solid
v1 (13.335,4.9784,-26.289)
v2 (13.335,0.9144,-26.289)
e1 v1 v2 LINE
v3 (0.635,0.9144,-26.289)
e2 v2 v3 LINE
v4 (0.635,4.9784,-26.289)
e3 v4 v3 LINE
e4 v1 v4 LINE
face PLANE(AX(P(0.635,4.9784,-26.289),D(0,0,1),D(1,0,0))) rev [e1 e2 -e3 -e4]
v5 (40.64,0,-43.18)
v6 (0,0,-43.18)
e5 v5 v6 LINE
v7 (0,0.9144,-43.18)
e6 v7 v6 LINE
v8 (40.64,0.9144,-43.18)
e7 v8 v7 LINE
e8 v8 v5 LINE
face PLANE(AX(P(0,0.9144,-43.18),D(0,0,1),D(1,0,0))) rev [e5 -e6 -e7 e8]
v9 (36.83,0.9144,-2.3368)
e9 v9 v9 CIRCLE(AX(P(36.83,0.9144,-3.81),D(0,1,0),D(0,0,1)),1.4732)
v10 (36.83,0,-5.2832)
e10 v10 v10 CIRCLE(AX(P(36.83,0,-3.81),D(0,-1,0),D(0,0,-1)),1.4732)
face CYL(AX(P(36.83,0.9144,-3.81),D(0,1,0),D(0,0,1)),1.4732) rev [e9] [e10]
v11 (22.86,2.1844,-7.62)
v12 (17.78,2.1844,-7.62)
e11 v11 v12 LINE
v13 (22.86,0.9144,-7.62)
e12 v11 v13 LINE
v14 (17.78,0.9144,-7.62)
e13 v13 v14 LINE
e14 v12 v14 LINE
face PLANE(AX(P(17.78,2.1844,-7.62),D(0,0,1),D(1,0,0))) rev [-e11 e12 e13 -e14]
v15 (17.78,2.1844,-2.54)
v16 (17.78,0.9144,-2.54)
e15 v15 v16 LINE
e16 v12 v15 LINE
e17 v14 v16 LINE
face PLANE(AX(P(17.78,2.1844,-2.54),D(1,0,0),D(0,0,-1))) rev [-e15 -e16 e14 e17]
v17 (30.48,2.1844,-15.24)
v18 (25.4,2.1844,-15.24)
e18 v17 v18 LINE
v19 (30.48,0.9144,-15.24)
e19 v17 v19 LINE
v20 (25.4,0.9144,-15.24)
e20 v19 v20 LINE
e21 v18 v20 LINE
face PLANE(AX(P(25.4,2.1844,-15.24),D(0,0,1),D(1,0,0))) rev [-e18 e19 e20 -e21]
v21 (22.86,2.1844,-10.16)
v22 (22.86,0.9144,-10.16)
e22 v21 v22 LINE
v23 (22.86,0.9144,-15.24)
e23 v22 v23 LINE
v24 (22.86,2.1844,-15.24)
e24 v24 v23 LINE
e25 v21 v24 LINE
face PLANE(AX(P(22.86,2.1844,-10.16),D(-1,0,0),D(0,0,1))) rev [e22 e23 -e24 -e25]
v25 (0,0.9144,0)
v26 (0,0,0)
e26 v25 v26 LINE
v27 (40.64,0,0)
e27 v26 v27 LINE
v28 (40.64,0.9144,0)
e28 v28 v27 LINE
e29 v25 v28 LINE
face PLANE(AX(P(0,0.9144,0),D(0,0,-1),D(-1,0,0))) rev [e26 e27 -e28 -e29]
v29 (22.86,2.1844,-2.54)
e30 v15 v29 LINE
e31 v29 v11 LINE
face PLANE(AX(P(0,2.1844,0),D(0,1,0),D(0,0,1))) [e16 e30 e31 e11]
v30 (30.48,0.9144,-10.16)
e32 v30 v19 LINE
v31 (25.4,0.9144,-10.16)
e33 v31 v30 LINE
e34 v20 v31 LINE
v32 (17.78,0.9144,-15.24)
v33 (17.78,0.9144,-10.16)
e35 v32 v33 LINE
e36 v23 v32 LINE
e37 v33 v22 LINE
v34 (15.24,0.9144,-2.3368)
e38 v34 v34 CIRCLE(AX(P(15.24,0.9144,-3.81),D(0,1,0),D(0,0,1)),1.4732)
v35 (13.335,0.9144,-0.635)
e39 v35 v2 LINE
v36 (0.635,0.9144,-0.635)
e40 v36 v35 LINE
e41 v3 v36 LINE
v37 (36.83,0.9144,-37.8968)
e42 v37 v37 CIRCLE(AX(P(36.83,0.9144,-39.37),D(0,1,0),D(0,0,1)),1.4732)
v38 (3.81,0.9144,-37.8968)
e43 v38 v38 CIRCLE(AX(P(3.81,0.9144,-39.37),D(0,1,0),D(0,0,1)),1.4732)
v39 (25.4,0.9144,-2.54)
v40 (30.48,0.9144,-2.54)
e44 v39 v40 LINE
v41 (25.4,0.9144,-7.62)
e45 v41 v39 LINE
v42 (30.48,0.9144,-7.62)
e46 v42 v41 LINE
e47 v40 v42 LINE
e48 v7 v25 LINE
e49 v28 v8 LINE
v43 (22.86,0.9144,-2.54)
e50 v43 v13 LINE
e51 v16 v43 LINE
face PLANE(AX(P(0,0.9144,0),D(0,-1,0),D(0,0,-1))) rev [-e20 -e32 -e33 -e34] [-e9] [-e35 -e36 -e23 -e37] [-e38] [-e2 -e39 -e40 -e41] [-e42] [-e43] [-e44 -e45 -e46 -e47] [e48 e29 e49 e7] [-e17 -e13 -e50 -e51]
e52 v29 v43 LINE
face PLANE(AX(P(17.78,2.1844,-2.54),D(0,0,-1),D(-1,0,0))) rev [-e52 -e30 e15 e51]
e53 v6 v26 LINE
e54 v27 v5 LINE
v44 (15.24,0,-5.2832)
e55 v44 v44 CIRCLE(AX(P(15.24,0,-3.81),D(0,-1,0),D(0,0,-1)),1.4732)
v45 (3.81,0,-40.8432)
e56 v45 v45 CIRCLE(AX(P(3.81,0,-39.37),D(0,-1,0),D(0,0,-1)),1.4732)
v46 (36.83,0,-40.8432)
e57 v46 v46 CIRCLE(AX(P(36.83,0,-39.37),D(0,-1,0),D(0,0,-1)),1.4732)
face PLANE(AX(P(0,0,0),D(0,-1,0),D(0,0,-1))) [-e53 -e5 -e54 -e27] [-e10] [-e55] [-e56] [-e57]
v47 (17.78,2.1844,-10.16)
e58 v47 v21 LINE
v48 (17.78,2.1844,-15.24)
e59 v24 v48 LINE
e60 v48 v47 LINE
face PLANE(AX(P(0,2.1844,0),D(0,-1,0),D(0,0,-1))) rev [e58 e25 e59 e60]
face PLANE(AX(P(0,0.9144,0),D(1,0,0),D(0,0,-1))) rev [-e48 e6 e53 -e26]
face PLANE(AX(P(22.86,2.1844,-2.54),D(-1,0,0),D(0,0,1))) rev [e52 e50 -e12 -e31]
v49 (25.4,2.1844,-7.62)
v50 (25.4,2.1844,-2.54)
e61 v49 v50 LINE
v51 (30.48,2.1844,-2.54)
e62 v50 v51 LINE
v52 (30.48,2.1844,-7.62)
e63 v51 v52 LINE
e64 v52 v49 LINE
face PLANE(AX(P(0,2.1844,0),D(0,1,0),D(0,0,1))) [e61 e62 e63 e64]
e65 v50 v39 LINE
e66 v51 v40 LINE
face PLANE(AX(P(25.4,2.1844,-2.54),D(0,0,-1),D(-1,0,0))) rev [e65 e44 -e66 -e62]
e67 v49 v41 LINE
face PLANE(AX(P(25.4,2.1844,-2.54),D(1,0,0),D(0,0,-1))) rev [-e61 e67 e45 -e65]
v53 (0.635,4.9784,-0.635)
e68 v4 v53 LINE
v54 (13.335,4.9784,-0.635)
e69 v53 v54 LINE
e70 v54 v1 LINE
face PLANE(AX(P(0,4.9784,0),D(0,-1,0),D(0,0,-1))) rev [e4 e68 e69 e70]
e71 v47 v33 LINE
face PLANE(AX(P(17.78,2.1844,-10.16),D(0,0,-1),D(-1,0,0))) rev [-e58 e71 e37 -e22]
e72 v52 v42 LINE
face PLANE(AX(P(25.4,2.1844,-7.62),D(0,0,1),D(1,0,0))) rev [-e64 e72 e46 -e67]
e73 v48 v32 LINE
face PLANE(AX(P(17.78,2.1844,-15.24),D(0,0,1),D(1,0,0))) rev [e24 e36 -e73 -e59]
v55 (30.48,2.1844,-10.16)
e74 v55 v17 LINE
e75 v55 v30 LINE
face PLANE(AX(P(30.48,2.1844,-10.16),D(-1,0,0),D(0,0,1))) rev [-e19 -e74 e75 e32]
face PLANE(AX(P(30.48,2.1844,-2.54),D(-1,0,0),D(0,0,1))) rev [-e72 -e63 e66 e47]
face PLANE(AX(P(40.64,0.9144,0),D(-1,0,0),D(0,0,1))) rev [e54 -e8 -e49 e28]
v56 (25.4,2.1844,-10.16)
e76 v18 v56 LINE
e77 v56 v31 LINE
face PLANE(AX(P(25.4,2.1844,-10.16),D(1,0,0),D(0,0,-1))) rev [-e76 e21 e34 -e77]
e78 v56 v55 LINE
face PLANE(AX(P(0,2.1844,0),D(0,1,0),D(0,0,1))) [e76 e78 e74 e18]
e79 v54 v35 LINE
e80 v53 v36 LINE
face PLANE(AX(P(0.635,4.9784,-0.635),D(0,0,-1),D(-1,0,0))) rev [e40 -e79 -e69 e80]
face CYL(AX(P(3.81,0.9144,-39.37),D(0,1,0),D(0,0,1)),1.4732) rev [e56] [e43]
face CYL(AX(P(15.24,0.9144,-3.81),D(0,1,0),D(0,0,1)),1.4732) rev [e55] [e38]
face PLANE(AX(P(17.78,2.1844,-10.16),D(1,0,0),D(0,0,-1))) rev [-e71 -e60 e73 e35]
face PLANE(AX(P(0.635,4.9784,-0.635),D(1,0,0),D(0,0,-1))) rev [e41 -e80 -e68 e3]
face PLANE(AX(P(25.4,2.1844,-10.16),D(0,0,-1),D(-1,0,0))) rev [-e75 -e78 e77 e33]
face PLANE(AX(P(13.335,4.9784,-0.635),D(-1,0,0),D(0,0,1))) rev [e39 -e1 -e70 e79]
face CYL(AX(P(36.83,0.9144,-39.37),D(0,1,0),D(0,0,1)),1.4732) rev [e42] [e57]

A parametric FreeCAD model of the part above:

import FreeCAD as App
import Part
import Sketcher

V = App.Vector
Q = App.Units.Quantity

doc = App.newDocument("Part")
params = doc.addObject("Spreadsheet::Sheet", "Params")
for row, (alias, value) in enumerate([
    ("sketch1_width", "1.6 in"),
    ("sketch1_height", "1.7 in"),
    ("pad1_length", "0.036 in"),
    ("sketch2_width", "0.2 in"),
    ("pad2_length", "0.05 in"),
    ("sketch3_width", "0.5 in"),
    ("sketch3_height", "1.01 in"),
    ("pad3_length", "0.16 in"),
    ("sketch4_diameter", "0.116 in"),
    ("hole_diameter", "0.116 in"),
    ("hole_depth", "1 in"),
], start=1):
    params.set(f"A{row}", alias)
    params.set(f"B{row}", "=" + value)
    params.setAlias(f"B{row}", alias)

body = doc.addObject("PartDesign::Body", "Body")

sketch1 = body.newObject("Sketcher::SketchObject", "Sketch")
sketch1.AttachmentSupport = (doc.getObject("XZ_Plane"), [""])
sketch1.MapMode = "FlatFace"
sketch1.addGeometry(Part.LineSegment(V(0, -43, 0), V(0, 0, 0)), False)
sketch1.addGeometry(Part.LineSegment(V(0, 0, 0), V(41, 0, 0)), False)
sketch1.addGeometry(Part.LineSegment(V(41, 0, 0), V(41, -43, 0)), False)
sketch1.addGeometry(Part.LineSegment(V(41, -43, 0), V(0, -43, 0)), False)
sketch1.addConstraint(Sketcher.Constraint("Coincident", 0, 2, 1, 1))
sketch1.addConstraint(Sketcher.Constraint("Coincident", 1, 2, 2, 1))
sketch1.addConstraint(Sketcher.Constraint("Coincident", 2, 2, 3, 1))
sketch1.addConstraint(Sketcher.Constraint("Coincident", 3, 2, 0, 1))
sketch1.addConstraint(Sketcher.Constraint("Vertical", 0))
sketch1.addConstraint(Sketcher.Constraint("Horizontal", 1))
sketch1.addConstraint(Sketcher.Constraint("Vertical", 2))
sketch1.addConstraint(Sketcher.Constraint("Horizontal", 3))
sketch1.addConstraint(Sketcher.Constraint("Coincident", 0, 2, -1, 1))
sketch1.addConstraint(Sketcher.Constraint("DistanceX", 1, 1, 1, 2, Q("1.6 in")))
sketch1.addConstraint(Sketcher.Constraint("DistanceY", 0, 1, 0, 2, Q("1.7 in")))
sketch1.setExpression("Constraints[9]", "Params.sketch1_width")
sketch1.setExpression("Constraints[10]", "Params.sketch1_height")
pad1 = body.newObject("PartDesign::Pad", "Pad")
pad1.Profile = sketch1
pad1.setExpression("Length", "Params.pad1_length")
pad1.Reversed = True

sketch2 = body.newObject("Sketcher::SketchObject", "Sketch001")
sketch2.AttachmentSupport = (doc.getObject("XZ_Plane"), [""])
sketch2.MapMode = "FlatFace"
sketch2.AttachmentOffset = App.Placement(V(0, 0, -0.036 * 25.4), App.Rotation())
sketch2.addGeometry(Part.LineSegment(V(18, -15, 0), V(18, -10, 0)), False)
sketch2.addGeometry(Part.LineSegment(V(18, -10, 0), V(23, -10, 0)), False)
sketch2.addGeometry(Part.LineSegment(V(23, -10, 0), V(23, -15, 0)), False)
sketch2.addGeometry(Part.LineSegment(V(23, -15, 0), V(18, -15, 0)), False)
sketch2.addGeometry(Part.LineSegment(V(25, -15, 0), V(25, -10, 0)), False)
sketch2.addGeometry(Part.LineSegment(V(25, -10, 0), V(30, -10, 0)), False)
sketch2.addGeometry(Part.LineSegment(V(30, -10, 0), V(30, -15, 0)), False)
sketch2.addGeometry(Part.LineSegment(V(30, -15, 0), V(25, -15, 0)), False)
sketch2.addGeometry(Part.LineSegment(V(25, -8, 0), V(25, -3, 0)), False)
sketch2.addGeometry(Part.LineSegment(V(25, -3, 0), V(30, -3, 0)), False)
sketch2.addGeometry(Part.LineSegment(V(30, -3, 0), V(30, -8, 0)), False)
sketch2.addGeometry(Part.LineSegment(V(30, -8, 0), V(25, -8, 0)), False)
sketch2.addGeometry(Part.LineSegment(V(18, -8, 0), V(18, -3, 0)), False)
sketch2.addGeometry(Part.LineSegment(V(18, -3, 0), V(23, -3, 0)), False)
sketch2.addGeometry(Part.LineSegment(V(23, -3, 0), V(23, -8, 0)), False)
sketch2.addGeometry(Part.LineSegment(V(23, -8, 0), V(18, -8, 0)), False)
sketch2.addConstraint(Sketcher.Constraint("Coincident", 0, 2, 1, 1))
sketch2.addConstraint(Sketcher.Constraint("Coincident", 1, 2, 2, 1))
sketch2.addConstraint(Sketcher.Constraint("Coincident", 2, 2, 3, 1))
sketch2.addConstraint(Sketcher.Constraint("Coincident", 3, 2, 0, 1))
sketch2.addConstraint(Sketcher.Constraint("Coincident", 4, 2, 5, 1))
sketch2.addConstraint(Sketcher.Constraint("Coincident", 5, 2, 6, 1))
sketch2.addConstraint(Sketcher.Constraint("Coincident", 6, 2, 7, 1))
sketch2.addConstraint(Sketcher.Constraint("Coincident", 7, 2, 4, 1))
sketch2.addConstraint(Sketcher.Constraint("Coincident", 8, 2, 9, 1))
sketch2.addConstraint(Sketcher.Constraint("Coincident", 9, 2, 10, 1))
sketch2.addConstraint(Sketcher.Constraint("Coincident", 10, 2, 11, 1))
sketch2.addConstraint(Sketcher.Constraint("Coincident", 11, 2, 8, 1))
sketch2.addConstraint(Sketcher.Constraint("Coincident", 12, 2, 13, 1))
sketch2.addConstraint(Sketcher.Constraint("Coincident", 13, 2, 14, 1))
sketch2.addConstraint(Sketcher.Constraint("Coincident", 14, 2, 15, 1))
sketch2.addConstraint(Sketcher.Constraint("Coincident", 15, 2, 12, 1))
sketch2.addConstraint(Sketcher.Constraint("Vertical", 0))
sketch2.addConstraint(Sketcher.Constraint("Horizontal", 1))
sketch2.addConstraint(Sketcher.Constraint("Vertical", 2))
sketch2.addConstraint(Sketcher.Constraint("Horizontal", 3))
sketch2.addConstraint(Sketcher.Constraint("Vertical", 4))
sketch2.addConstraint(Sketcher.Constraint("Horizontal", 5))
sketch2.addConstraint(Sketcher.Constraint("Vertical", 6))
sketch2.addConstraint(Sketcher.Constraint("Horizontal", 7))
sketch2.addConstraint(Sketcher.Constraint("Vertical", 8))
sketch2.addConstraint(Sketcher.Constraint("Horizontal", 9))
sketch2.addConstraint(Sketcher.Constraint("Vertical", 10))
sketch2.addConstraint(Sketcher.Constraint("Horizontal", 11))
sketch2.addConstraint(Sketcher.Constraint("Vertical", 12))
sketch2.addConstraint(Sketcher.Constraint("Horizontal", 13))
sketch2.addConstraint(Sketcher.Constraint("Vertical", 14))
sketch2.addConstraint(Sketcher.Constraint("Horizontal", 15))
sketch2.addConstraint(Sketcher.Constraint("Horizontal", 1, 2, 4, 2))
sketch2.addConstraint(Sketcher.Constraint("Horizontal", 3, 2, 6, 2))
sketch2.addConstraint(Sketcher.Constraint("Horizontal", 9, 2, 12, 2))
sketch2.addConstraint(Sketcher.Constraint("Horizontal", 11, 2, 14, 2))
sketch2.addConstraint(Sketcher.Constraint("Vertical", 7, 2, 8, 2))
sketch2.addConstraint(Sketcher.Constraint("Vertical", 6, 2, 9, 2))
sketch2.addConstraint(Sketcher.Constraint("Vertical", 3, 2, 12, 2))
sketch2.addConstraint(Sketcher.Constraint("Vertical", 2, 2, 13, 2))
sketch2.addConstraint(Sketcher.Constraint("Equal", 3, 5))
sketch2.addConstraint(Sketcher.Constraint("Equal", 15, 0))
sketch2.addConstraint(Sketcher.Constraint("Equal", 6, 8))
sketch2.addConstraint(Sketcher.Constraint("DistanceX", 1, 1, 1, 2, Q("0.2 in")))
sketch2.addConstraint(Sketcher.Constraint("DistanceX", -1, 1, 4, 2, Q("1 in")))
sketch2.addConstraint(Sketcher.Constraint("DistanceX", -1, 1, 0, 2, Q("0.7 in")))
sketch2.addConstraint(Sketcher.Constraint("DistanceY", 0, 2, -1, 1, Q("0.4 in")))
sketch2.addConstraint(Sketcher.Constraint("DistanceY", 8, 2, -1, 1, Q("0.1 in")))
sketch2.setExpression("Constraints[43]", "Params.sketch2_width")
pad2 = body.newObject("PartDesign::Pad", "Pad001")
pad2.Profile = sketch2
pad2.setExpression("Length", "Params.pad2_length")
pad2.Reversed = True

sketch3 = body.newObject("Sketcher::SketchObject", "Sketch002")
sketch3.AttachmentSupport = (doc.getObject("XZ_Plane"), [""])
sketch3.MapMode = "FlatFace"
sketch3.AttachmentOffset = App.Placement(V(0, 0, -0.036 * 25.4), App.Rotation())
sketch3.addGeometry(Part.LineSegment(V(1, -26, 0), V(1, -1, 0)), False)
sketch3.addGeometry(Part.LineSegment(V(1, -1, 0), V(13, -1, 0)), False)
sketch3.addGeometry(Part.LineSegment(V(13, -1, 0), V(13, -26, 0)), False)
sketch3.addGeometry(Part.LineSegment(V(13, -26, 0), V(1, -26, 0)), False)
sketch3.addConstraint(Sketcher.Constraint("Coincident", 0, 2, 1, 1))
sketch3.addConstraint(Sketcher.Constraint("Coincident", 1, 2, 2, 1))
sketch3.addConstraint(Sketcher.Constraint("Coincident", 2, 2, 3, 1))
sketch3.addConstraint(Sketcher.Constraint("Coincident", 3, 2, 0, 1))
sketch3.addConstraint(Sketcher.Constraint("Vertical", 0))
sketch3.addConstraint(Sketcher.Constraint("Horizontal", 1))
sketch3.addConstraint(Sketcher.Constraint("Vertical", 2))
sketch3.addConstraint(Sketcher.Constraint("Horizontal", 3))
sketch3.addConstraint(Sketcher.Constraint("DistanceX", 1, 1, 1, 2, Q("0.5 in")))
sketch3.addConstraint(Sketcher.Constraint("DistanceY", 0, 1, 0, 2, Q("1.01 in")))
sketch3.addConstraint(Sketcher.Constraint("DistanceX", -1, 1, 0, 2, Q("0.025 in")))
sketch3.addConstraint(Sketcher.Constraint("DistanceY", 0, 2, -1, 1, Q("0.025 in")))
sketch3.setExpression("Constraints[8]", "Params.sketch3_width")
sketch3.setExpression("Constraints[9]", "Params.sketch3_height")
pad3 = body.newObject("PartDesign::Pad", "Pad002")
pad3.Profile = sketch3
pad3.setExpression("Length", "Params.pad3_length")
pad3.Reversed = True

sketch4 = body.newObject("Sketcher::SketchObject", "Sketch003")
sketch4.AttachmentSupport = (doc.getObject("XZ_Plane"), [""])
sketch4.MapMode = "FlatFace"
sketch4.AttachmentOffset = App.Placement(V(0, 0, -0.036 * 25.4), App.Rotation())
sketch4.addGeometry(Part.Circle(V(3.8, -39.4, 0), V(0, 0, 1), 1.5), False)
sketch4.addGeometry(Part.Circle(V(36.8, -39.4, 0), V(0, 0, 1), 1.5), False)
sketch4.addGeometry(Part.Circle(V(36.8, -3.8, 0), V(0, 0, 1), 1.5), False)
sketch4.addGeometry(Part.Circle(V(15.2, -3.8, 0), V(0, 0, 1), 1.5), False)
sketch4.addConstraint(Sketcher.Constraint("Equal", 0, 1))
sketch4.addConstraint(Sketcher.Constraint("Equal", 1, 2))
sketch4.addConstraint(Sketcher.Constraint("Equal", 2, 3))
sketch4.addConstraint(Sketcher.Constraint("Horizontal", 0, 3, 1, 3))
sketch4.addConstraint(Sketcher.Constraint("Horizontal", 2, 3, 3, 3))
sketch4.addConstraint(Sketcher.Constraint("Vertical", 1, 3, 2, 3))
sketch4.addConstraint(Sketcher.Constraint("Diameter", 0, Q("0.116 in")))
sketch4.addConstraint(Sketcher.Constraint("DistanceX", -1, 1, 3, 3, Q("0.6 in")))
sketch4.addConstraint(Sketcher.Constraint("DistanceX", 0, 3, 1, 3, Q("1.3 in")))
sketch4.addConstraint(Sketcher.Constraint("DistanceY", 1, 3, 2, 3, Q("1.4 in")))
sketch4.addConstraint(Sketcher.Constraint("DistanceX", -1, 1, 0, 3, Q("0.15 in")))
sketch4.addConstraint(Sketcher.Constraint("DistanceY", 0, 3, -1, 1, Q("1.55 in")))
sketch4.setExpression("Constraints[6]", "Params.sketch4_diameter")
doc.recompute()
hole = body.newObject("PartDesign::Hole", "Hole")
hole.Profile = sketch4
hole.ThreadType = "None"
hole.setExpression("Diameter", "Params.hole_diameter")
hole.DepthType = "Dimension"
hole.setExpression("Depth", "Params.hole_depth")
hole.DrillPoint = "Angled"
hole.DrillPointAngle = 118
hole.Reversed = True

doc.recompute()
